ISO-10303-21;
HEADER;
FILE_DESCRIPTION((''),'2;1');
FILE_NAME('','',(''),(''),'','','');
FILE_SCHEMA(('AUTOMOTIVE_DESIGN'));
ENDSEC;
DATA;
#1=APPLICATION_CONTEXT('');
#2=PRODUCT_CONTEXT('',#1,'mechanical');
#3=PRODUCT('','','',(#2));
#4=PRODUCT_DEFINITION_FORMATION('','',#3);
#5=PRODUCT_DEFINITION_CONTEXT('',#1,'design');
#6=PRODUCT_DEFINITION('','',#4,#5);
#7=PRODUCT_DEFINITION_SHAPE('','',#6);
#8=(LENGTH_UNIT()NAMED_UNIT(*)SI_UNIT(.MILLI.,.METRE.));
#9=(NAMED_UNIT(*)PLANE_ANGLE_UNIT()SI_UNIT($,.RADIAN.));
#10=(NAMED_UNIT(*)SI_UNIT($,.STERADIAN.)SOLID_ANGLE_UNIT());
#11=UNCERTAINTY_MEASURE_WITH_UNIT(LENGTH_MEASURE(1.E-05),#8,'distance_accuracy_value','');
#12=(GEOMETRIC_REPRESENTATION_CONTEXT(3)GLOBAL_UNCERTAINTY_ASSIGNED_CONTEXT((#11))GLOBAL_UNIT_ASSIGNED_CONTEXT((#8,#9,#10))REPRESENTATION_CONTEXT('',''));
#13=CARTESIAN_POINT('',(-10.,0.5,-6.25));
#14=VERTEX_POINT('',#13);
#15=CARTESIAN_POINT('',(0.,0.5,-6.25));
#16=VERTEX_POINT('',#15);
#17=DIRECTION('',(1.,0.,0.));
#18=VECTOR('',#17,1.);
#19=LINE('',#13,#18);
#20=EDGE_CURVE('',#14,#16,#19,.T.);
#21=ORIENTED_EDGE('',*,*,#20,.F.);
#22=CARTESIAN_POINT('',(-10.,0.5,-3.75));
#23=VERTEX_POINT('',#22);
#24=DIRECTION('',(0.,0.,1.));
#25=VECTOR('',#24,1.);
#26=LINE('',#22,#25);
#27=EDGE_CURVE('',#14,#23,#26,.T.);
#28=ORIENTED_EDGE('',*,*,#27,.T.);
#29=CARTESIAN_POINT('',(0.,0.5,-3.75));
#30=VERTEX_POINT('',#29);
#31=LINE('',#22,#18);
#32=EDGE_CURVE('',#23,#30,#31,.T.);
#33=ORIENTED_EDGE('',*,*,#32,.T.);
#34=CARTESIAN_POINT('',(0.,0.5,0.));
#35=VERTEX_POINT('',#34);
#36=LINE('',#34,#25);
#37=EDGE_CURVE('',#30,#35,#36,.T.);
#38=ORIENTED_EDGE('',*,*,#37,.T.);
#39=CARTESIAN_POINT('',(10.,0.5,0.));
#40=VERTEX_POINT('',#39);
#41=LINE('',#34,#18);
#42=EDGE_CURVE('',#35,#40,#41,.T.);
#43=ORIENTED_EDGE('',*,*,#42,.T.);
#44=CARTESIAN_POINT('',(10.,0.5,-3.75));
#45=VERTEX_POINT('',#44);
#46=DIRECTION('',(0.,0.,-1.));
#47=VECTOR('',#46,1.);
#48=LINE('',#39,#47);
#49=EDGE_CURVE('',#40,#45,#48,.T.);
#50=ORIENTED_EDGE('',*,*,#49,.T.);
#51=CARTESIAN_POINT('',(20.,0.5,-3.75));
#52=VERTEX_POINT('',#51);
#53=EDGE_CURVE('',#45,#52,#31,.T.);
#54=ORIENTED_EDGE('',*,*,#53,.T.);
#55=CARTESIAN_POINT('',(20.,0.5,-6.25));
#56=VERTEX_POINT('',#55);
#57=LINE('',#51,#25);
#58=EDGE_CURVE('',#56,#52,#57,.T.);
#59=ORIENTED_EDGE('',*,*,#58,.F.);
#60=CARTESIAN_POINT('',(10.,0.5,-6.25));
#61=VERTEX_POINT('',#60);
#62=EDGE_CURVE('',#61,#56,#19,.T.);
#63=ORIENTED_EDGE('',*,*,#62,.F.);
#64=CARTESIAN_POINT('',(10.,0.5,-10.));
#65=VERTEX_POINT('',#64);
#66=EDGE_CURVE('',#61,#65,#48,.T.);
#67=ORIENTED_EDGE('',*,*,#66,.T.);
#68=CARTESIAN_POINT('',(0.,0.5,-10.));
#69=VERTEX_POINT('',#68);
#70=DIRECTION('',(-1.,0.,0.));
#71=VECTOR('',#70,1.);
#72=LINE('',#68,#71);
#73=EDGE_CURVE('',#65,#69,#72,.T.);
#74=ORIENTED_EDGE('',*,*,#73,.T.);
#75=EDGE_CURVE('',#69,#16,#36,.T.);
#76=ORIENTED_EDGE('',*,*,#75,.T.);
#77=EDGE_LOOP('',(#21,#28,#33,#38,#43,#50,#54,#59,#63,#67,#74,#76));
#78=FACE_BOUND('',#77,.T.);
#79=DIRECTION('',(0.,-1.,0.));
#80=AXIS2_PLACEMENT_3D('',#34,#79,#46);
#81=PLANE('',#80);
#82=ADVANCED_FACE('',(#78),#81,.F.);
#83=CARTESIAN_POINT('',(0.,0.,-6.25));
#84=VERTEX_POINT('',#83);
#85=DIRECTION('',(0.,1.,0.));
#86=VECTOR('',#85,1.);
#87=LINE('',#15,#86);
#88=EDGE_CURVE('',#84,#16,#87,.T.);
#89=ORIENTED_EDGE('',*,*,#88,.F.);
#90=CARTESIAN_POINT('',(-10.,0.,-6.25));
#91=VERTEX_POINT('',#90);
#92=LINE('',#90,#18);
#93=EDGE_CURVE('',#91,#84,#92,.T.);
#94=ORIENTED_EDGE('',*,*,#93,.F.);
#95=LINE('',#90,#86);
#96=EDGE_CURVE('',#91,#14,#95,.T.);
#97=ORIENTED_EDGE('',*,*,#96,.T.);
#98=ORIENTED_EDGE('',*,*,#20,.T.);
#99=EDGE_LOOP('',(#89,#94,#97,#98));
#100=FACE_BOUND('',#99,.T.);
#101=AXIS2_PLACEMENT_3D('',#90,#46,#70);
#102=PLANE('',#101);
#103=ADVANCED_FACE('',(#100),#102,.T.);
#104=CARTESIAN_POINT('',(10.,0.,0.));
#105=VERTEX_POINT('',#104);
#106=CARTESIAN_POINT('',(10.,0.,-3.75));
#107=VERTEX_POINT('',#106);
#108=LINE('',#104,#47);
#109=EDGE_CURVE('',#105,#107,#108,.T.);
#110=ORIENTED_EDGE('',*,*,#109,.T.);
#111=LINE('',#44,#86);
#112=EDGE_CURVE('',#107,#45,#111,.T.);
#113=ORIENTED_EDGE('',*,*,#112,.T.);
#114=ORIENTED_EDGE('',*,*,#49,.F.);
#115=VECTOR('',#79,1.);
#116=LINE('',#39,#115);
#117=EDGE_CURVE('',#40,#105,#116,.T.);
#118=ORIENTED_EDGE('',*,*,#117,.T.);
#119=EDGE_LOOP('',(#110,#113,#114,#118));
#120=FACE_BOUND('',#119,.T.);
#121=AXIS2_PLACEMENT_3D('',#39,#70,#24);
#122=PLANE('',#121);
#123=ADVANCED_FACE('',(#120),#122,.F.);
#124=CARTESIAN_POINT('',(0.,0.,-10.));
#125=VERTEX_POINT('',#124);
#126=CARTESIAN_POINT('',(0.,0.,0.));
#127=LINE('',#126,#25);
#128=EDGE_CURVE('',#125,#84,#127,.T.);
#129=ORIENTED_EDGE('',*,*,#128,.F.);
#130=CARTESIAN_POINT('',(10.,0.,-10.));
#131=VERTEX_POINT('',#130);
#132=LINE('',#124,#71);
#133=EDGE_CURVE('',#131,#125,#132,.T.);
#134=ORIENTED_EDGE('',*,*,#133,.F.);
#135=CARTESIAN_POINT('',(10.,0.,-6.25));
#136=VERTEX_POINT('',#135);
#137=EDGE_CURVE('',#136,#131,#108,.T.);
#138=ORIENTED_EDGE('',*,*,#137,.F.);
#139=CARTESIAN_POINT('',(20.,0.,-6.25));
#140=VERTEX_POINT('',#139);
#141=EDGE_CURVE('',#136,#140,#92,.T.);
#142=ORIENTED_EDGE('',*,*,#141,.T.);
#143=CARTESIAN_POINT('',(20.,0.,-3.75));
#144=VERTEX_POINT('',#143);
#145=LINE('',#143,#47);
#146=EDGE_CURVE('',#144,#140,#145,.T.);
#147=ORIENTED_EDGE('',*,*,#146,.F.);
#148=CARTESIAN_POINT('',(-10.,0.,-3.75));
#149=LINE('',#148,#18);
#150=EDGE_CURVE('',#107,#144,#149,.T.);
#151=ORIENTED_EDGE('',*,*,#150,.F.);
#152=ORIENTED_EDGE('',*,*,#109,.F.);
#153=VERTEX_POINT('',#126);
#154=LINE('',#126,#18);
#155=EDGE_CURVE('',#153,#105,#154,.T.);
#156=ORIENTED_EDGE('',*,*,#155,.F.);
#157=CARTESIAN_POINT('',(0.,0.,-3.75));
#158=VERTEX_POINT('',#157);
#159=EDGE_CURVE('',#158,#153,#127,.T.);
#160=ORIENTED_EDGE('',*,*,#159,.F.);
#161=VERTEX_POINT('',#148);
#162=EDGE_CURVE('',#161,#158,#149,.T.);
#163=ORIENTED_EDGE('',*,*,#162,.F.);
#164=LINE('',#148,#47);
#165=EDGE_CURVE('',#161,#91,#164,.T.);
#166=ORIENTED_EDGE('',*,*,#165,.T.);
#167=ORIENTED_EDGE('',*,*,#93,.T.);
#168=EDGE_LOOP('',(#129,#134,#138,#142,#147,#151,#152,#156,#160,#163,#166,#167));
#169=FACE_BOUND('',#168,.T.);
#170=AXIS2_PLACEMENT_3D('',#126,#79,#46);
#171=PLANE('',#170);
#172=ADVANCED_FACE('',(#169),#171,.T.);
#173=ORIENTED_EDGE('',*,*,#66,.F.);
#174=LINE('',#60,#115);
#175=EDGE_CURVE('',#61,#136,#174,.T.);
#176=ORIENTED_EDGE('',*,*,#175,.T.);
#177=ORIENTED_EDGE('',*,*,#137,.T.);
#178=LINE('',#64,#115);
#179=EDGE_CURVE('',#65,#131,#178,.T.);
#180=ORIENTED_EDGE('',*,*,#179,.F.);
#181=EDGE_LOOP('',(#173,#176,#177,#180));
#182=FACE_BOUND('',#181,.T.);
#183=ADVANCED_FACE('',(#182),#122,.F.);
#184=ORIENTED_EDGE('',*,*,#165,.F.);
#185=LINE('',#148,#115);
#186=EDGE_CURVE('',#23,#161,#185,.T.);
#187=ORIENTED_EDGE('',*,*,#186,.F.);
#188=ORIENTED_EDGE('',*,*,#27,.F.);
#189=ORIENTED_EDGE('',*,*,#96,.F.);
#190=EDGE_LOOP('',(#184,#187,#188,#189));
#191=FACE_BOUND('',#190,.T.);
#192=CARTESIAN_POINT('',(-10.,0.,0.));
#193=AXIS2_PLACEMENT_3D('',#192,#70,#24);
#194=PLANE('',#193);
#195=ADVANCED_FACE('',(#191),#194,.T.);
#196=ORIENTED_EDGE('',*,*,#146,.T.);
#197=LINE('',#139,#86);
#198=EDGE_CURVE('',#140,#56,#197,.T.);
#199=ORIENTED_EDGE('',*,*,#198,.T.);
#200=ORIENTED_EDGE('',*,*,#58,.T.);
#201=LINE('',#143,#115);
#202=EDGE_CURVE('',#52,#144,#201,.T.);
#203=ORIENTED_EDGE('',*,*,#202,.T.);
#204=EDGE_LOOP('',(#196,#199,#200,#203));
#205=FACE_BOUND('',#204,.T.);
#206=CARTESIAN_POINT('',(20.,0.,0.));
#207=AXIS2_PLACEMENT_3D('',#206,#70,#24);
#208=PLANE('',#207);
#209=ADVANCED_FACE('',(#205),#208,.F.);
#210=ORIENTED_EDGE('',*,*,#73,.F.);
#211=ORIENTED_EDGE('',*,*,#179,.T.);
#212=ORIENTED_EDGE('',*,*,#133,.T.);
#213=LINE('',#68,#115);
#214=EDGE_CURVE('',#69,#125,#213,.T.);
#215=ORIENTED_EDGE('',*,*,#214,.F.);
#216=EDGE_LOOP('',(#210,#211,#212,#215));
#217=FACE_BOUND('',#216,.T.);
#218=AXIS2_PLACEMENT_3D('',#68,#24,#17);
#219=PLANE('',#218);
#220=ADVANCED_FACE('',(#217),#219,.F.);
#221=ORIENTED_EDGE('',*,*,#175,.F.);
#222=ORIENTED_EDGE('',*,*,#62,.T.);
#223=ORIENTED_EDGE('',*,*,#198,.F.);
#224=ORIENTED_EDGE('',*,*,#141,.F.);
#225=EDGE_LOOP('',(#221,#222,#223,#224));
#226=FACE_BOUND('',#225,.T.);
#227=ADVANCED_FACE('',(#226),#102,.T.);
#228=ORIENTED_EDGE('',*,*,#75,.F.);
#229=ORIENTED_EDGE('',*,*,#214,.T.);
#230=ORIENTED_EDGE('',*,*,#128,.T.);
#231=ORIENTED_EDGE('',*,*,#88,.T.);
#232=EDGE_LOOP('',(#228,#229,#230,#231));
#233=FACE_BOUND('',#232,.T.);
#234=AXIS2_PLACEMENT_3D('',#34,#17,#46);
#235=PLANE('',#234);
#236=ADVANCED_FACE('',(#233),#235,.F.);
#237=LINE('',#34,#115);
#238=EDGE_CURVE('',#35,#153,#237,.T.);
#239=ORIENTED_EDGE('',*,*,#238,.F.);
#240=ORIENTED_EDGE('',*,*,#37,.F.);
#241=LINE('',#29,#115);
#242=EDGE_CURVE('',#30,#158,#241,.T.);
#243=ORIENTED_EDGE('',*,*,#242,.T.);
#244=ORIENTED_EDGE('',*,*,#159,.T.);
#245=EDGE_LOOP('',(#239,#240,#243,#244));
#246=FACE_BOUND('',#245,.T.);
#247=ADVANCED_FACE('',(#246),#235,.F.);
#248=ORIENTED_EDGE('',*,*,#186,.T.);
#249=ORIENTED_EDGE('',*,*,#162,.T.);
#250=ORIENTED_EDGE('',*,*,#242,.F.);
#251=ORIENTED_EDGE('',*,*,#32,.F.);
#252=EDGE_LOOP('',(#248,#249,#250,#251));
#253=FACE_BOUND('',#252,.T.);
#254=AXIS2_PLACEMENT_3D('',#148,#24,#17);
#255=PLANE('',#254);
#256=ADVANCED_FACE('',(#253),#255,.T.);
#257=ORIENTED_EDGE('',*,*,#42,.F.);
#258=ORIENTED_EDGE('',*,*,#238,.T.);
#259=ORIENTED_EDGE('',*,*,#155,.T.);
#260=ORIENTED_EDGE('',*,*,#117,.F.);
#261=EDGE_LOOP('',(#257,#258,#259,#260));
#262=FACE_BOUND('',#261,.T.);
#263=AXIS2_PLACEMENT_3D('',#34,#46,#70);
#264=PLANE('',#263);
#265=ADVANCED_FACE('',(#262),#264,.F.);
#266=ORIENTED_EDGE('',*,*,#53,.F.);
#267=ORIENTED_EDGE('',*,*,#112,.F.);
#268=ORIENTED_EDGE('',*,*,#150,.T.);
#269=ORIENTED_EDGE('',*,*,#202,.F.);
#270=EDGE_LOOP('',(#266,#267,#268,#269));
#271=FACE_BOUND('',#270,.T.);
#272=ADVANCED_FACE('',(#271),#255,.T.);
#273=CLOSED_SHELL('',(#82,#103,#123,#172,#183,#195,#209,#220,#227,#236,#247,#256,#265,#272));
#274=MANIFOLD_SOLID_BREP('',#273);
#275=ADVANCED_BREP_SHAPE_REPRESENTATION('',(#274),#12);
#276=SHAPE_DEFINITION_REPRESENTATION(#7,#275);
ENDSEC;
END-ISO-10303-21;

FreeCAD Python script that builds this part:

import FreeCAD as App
import Part
import Sketcher


def add_polygon(sketch, points):
    """Adds a closed chain of lines whose ends are joined by coincident constraints."""
    first, n = sketch.GeometryCount, len(points)
    for a, b in zip(points, points[1:] + points[:1]):
        sketch.addGeometry(Part.LineSegment(App.Vector(*a, 0), App.Vector(*b, 0)), False)
    for i in range(n):
        sketch.addConstraint(Sketcher.Constraint("Coincident", first + i, 2, first + (i + 1) % n, 1))

doc = App.newDocument("Part")
body = doc.addObject("PartDesign::Body", "Body")

sketch1 = body.newObject("Sketcher::SketchObject", "Sketch")
sketch1.AttachmentSupport = (doc.getObject("XZ_Plane"), [""])
sketch1.MapMode = "FlatFace"
add_polygon(sketch1, [(0, -10), (0, 0), (10, 0), (10, -10)])
sketch1.addConstraint(Sketcher.Constraint("Vertical", 0))
sketch1.addConstraint(Sketcher.Constraint("Horizontal", 1))
sketch1.addConstraint(Sketcher.Constraint("Vertical", 2))
sketch1.addConstraint(Sketcher.Constraint("Horizontal", 3))
sketch1.addConstraint(Sketcher.Constraint("Coincident", 0, 2, -1, 1))
sketch1.addConstraint(Sketcher.Constraint("Equal", 3, 0))
sketch1.addConstraint(Sketcher.Constraint("DistanceX", 1, 1, 1, 2, 10.0))
pad1 = body.newObject("PartDesign::Pad", "Pad")
pad1.Profile = sketch1
pad1.Length = 0.5
pad1.Reversed = True

sketch2 = body.newObject("Sketcher::SketchObject", "Sketch001")
sketch2.AttachmentSupport = (doc.getObject("YZ_Plane"), [""])
sketch2.MapMode = "FlatFace"
sketch2.AttachmentOffset = App.Placement(App.Vector(0, 0, 10), App.Rotation())
add_polygon(sketch2, [(0.5, -3.8), (0, -3.8), (0, -6.2), (0.5, -6.2)])
sketch2.addConstraint(Sketcher.Constraint("Horizontal", 0))
sketch2.addConstraint(Sketcher.Constraint("Vertical", 1))
sketch2.addConstraint(Sketcher.Constraint("Horizontal", 2))
sketch2.addConstraint(Sketcher.Constraint("Vertical", 3))
sketch2.addConstraint(Sketcher.Constraint("PointOnObject", 0, 2, -2))
sketch2.addConstraint(Sketcher.Constraint("DistanceX", 0, 2, 0, 1, 0.5))
sketch2.addConstraint(Sketcher.Constraint("DistanceY", 1, 2, 1, 1, 2.5))
sketch2.addConstraint(Sketcher.Constraint("DistanceY", 0, 2, -1, 1, 3.75))
pad2 = body.newObject("PartDesign::Pad", "Pad001")
pad2.Profile = sketch2
pad2.Type = "TwoLengths"
pad2.Length = 10
pad2.Length2 = 20

doc.recompute()
